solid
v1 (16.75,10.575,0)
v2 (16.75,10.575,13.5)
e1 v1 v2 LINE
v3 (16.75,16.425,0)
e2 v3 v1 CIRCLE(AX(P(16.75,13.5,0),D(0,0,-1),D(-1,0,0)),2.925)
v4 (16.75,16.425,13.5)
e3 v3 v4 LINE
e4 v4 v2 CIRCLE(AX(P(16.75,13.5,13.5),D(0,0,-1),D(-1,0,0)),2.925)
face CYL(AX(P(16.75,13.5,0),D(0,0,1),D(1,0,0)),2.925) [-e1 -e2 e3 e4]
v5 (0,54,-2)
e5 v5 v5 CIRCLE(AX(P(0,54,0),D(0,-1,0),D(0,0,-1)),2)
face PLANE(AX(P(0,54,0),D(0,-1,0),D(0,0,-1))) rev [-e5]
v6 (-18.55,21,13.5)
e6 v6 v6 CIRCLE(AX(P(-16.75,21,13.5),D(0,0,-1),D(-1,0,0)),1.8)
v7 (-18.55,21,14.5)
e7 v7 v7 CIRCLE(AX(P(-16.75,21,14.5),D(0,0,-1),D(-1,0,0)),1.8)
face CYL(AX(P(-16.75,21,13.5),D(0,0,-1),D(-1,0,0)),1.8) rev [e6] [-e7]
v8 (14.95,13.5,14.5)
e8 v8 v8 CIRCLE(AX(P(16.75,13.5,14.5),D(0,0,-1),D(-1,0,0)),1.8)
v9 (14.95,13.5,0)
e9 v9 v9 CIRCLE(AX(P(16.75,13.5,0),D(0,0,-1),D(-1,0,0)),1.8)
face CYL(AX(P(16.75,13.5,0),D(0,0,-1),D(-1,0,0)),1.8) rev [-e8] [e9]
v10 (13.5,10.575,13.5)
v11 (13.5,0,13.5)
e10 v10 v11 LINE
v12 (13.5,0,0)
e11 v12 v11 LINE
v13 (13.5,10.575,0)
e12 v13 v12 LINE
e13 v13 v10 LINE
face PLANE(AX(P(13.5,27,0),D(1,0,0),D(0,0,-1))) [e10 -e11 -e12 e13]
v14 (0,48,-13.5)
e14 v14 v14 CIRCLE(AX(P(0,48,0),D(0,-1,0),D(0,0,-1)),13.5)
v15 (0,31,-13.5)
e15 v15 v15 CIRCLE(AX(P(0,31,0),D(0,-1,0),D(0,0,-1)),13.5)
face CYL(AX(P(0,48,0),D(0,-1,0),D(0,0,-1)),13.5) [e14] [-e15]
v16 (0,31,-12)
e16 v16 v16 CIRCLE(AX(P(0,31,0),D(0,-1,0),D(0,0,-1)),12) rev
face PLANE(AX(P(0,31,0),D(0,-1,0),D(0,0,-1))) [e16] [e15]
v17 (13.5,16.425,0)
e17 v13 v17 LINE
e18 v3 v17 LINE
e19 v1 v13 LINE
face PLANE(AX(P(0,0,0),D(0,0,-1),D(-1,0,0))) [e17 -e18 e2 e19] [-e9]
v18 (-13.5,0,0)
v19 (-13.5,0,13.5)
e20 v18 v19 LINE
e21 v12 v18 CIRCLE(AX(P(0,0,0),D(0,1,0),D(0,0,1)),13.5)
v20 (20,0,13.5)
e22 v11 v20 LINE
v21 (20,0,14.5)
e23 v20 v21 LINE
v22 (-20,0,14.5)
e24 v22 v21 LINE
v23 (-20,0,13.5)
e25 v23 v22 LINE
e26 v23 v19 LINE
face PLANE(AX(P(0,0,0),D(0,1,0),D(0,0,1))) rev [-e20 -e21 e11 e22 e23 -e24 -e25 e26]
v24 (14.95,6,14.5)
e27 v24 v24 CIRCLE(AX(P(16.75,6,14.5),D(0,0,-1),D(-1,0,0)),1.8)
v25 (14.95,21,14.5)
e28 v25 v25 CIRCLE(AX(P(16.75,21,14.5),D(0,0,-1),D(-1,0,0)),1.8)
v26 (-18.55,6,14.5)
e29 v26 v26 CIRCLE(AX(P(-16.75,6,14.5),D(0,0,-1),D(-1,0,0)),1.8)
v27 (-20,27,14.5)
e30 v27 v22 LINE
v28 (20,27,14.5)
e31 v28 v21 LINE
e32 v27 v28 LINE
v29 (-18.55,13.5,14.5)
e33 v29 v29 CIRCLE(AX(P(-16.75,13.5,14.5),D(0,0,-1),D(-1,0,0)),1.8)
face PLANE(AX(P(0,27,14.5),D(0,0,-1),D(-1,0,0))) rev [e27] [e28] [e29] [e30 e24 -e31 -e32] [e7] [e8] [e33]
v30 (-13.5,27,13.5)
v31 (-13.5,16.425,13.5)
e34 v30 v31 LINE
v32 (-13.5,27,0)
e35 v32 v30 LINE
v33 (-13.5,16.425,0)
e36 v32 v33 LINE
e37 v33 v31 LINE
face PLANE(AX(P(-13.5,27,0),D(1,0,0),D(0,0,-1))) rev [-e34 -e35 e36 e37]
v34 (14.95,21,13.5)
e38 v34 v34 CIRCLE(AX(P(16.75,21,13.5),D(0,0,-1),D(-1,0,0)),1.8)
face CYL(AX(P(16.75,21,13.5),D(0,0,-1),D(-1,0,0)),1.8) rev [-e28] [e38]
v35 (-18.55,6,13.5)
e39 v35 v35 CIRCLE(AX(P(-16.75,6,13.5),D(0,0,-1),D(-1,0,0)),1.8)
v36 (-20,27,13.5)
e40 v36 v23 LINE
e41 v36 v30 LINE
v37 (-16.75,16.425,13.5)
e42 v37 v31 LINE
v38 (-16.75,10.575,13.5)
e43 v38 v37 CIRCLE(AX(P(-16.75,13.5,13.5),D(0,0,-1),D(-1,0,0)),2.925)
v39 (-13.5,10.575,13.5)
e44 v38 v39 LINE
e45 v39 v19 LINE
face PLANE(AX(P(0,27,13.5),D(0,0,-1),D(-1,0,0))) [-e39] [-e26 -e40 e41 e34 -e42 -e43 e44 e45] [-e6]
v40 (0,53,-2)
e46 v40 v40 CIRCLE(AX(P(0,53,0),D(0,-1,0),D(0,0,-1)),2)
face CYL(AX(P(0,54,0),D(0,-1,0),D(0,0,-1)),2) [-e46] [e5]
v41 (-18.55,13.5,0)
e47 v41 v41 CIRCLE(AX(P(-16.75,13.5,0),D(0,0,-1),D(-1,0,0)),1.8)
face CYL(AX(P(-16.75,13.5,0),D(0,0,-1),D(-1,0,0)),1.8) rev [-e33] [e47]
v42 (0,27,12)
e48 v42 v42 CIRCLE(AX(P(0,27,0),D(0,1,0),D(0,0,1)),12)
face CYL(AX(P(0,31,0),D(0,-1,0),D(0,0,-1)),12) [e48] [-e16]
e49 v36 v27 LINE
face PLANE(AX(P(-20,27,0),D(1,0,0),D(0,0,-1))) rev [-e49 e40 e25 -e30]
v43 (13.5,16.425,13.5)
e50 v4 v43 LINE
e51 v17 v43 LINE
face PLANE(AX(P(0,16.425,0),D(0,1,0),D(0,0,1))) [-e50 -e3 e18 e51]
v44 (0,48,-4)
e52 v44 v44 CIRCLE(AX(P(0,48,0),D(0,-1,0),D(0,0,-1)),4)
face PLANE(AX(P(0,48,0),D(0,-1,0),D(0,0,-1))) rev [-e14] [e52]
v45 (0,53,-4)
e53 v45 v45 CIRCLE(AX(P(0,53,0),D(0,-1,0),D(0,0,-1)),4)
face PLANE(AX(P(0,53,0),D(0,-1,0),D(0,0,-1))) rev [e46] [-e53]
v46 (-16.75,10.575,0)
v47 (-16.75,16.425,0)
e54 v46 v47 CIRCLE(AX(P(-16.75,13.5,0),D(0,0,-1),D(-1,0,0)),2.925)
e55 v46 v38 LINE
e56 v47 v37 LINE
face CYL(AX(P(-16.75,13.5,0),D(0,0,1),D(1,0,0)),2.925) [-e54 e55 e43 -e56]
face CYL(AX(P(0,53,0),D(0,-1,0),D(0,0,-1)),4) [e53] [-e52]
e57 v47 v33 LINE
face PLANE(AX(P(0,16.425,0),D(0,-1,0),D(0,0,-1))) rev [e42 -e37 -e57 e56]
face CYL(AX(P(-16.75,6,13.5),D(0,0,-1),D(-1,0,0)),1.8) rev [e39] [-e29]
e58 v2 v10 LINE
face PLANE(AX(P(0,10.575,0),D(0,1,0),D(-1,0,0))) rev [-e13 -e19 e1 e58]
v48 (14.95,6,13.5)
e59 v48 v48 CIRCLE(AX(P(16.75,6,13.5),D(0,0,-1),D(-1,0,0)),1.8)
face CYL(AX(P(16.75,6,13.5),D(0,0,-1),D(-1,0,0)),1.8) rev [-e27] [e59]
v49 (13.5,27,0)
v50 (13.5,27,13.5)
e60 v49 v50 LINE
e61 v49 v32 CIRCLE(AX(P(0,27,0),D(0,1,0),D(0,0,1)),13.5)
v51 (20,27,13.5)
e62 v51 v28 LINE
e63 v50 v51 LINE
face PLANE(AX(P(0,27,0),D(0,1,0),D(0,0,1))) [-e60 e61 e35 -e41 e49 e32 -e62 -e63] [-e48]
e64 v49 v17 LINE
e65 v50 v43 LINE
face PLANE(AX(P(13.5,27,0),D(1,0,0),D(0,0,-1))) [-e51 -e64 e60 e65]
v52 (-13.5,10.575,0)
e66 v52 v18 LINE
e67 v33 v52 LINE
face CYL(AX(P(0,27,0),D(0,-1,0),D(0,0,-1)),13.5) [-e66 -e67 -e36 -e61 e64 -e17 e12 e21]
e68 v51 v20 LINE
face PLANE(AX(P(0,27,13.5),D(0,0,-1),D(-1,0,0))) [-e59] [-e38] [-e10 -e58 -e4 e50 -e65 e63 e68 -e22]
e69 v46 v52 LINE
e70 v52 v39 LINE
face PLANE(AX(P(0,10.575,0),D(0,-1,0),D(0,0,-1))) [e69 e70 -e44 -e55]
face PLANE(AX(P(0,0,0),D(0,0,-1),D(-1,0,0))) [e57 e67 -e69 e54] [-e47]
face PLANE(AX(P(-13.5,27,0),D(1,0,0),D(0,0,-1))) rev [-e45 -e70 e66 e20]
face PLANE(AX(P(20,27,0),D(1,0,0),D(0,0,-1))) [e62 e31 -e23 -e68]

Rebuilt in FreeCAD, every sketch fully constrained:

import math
import FreeCAD as App
import Part
import Sketcher
from FreeCAD import Vector

doc = App.newDocument("Part")
params = doc.addObject("Spreadsheet::Sheet", "Params")
for row, (alias, value) in enumerate([
    ("sketch1_radius", "13.5 mm"),
    ("sketch1_width", "40 mm"),
    ("sketch1_height", "1 mm"),
    ("sketch1_height2", "13.5 mm"),
    ("pad1_length", "27 mm"),
    ("sketch2_width", "3.25 mm"),
    ("pad2_length", "13.5 mm"),
    ("sketch3_width", "3.25 mm"),
    ("pad3_length", "13.5 mm"),
    ("sketch4_diameter", "24 mm"),
    ("pad4_length", "4 mm"),
    ("sketch5_diameter", "27 mm"),
    ("pad5_length", "17 mm"),
    ("sketch6_diameter", "8 mm"),
    ("pad6_length", "5 mm"),
    ("sketch7_diameter", "4 mm"),
    ("pad7_length", "1 mm"),
    ("sketch8_diameter", "3.6 mm"),
    ("hole_diameter", "3.6 mm"),
    ("sketch9_diameter", "3.6 mm"),
    ("hole2_diameter", "3.6 mm"),
], start=1):
    params.set(f"A{row}", alias)
    params.set(f"B{row}", "=" + value)
    params.setAlias(f"B{row}", alias)

body = doc.addObject("PartDesign::Body", "Body")

sketch1 = doc.addObject("Sketcher::SketchObject", "Sketch")
body.addObject(sketch1)
sketch1.AttachmentSupport = (doc.XZ_Plane, [""])
sketch1.MapMode = "FlatFace"
sketch1.addGeometry(Part.LineSegment(Vector(-13.5, 0, 0), Vector(-13.5, 13.5, 0)), False)
sketch1.addGeometry(Part.LineSegment(Vector(-13.5, 13.5, 0), Vector(-20, 13.5, 0)), False)
sketch1.addGeometry(Part.LineSegment(Vector(-20, 13.5, 0), Vector(-20, 14.5, 0)), False)
sketch1.addGeometry(Part.LineSegment(Vector(-20, 14.5, 0), Vector(20, 14.5, 0)), False)
sketch1.addGeometry(Part.LineSegment(Vector(20, 14.5, 0), Vector(20, 13.5, 0)), False)
sketch1.addGeometry(Part.LineSegment(Vector(20, 13.5, 0), Vector(13.5, 13.5, 0)), False)
sketch1.addGeometry(Part.LineSegment(Vector(13.5, 13.5, 0), Vector(13.5, 0, 0)), False)
sketch1.addGeometry(Part.ArcOfCircle(Part.Circle(Vector(0, 0, 0), Vector(0, 0, 1), 13.5), math.radians(180), math.radians(360)), False)
sketch1.addConstraint(Sketcher.Constraint("Coincident", 0, 2, 1, 1))
sketch1.addConstraint(Sketcher.Constraint("Coincident", 1, 2, 2, 1))
sketch1.addConstraint(Sketcher.Constraint("Coincident", 2, 2, 3, 1))
sketch1.addConstraint(Sketcher.Constraint("Coincident", 3, 2, 4, 1))
sketch1.addConstraint(Sketcher.Constraint("Coincident", 4, 2, 5, 1))
sketch1.addConstraint(Sketcher.Constraint("Coincident", 5, 2, 6, 1))
sketch1.addConstraint(Sketcher.Constraint("Tangent", 6, 2, 7, 2))
sketch1.addConstraint(Sketcher.Constraint("Tangent", 7, 1, 0, 1))
sketch1.addConstraint(Sketcher.Constraint("Vertical", 0))
sketch1.addConstraint(Sketcher.Constraint("Horizontal", 1))
sketch1.addConstraint(Sketcher.Constraint("Vertical", 2))
sketch1.addConstraint(Sketcher.Constraint("Horizontal", 3))
sketch1.addConstraint(Sketcher.Constraint("Vertical", 4))
sketch1.addConstraint(Sketcher.Constraint("Horizontal", 5))
sketch1.addConstraint(Sketcher.Constraint("Vertical", 6))
sketch1.addConstraint(Sketcher.Constraint("Coincident", 7, 3, -1, 1))
sketch1.addConstraint(Sketcher.Constraint("Symmetric", 1, 2, 4, 2, -2))
sketch1.addConstraint(Sketcher.Constraint("Radius", 7, 13.5))
sketch1.addConstraint(Sketcher.Constraint("DistanceX", 3, 1, 3, 2, 40.0))
sketch1.addConstraint(Sketcher.Constraint("DistanceY", 2, 1, 2, 2, 1.0))
sketch1.addConstraint(Sketcher.Constraint("DistanceY", 0, 1, 0, 2, 13.5))
sketch1.setExpression("Constraints[17]", "Params.sketch1_radius")
sketch1.setExpression("Constraints[18]", "Params.sketch1_width")
sketch1.setExpression("Constraints[19]", "Params.sketch1_height")
sketch1.setExpression("Constraints[20]", "Params.sketch1_height2")
pad1 = doc.addObject("PartDesign::Pad", "Pad")
body.addObject(pad1)
pad1.Profile = sketch1
pad1.setExpression("Length", "Params.pad1_length")
pad1.Reversed = True

sketch2 = doc.addObject("Sketcher::SketchObject", "Sketch001")
body.addObject(sketch2)
sketch2.AttachmentSupport = (doc.XY_Plane, [""])
sketch2.MapMode = "FlatFace"
sketch2.AttachmentOffset = App.Placement(Vector(0, 0, 13.5), App.Rotation())
sketch2.addGeometry(Part.LineSegment(Vector(-13.5, 10.6, 0), Vector(-16.8, 10.6, 0)), False)
sketch2.addGeometry(Part.ArcOfCircle(Part.Circle(Vector(-16.8, 13.5, 0), Vector(0, 0, 1), 2.9), math.radians(90), math.radians(270)), False)
sketch2.addGeometry(Part.LineSegment(Vector(-16.8, 16.4, 0), Vector(-13.5, 16.4, 0)), False)
sketch2.addGeometry(Part.LineSegment(Vector(-13.5, 16.4, 0), Vector(-13.5, 10.6, 0)), False)
sketch2.addConstraint(Sketcher.Constraint("Tangent", 0, 2, 1, 2))
sketch2.addConstraint(Sketcher.Constraint("Tangent", 1, 1, 2, 1))
sketch2.addConstraint(Sketcher.Constraint("Coincident", 2, 2, 3, 1))
sketch2.addConstraint(Sketcher.Constraint("Coincident", 3, 2, 0, 1))
sketch2.addConstraint(Sketcher.Constraint("Horizontal", 0))
sketch2.addConstraint(Sketcher.Constraint("Horizontal", 2))
sketch2.addConstraint(Sketcher.Constraint("Vertical", 3))
sketch2.addConstraint(Sketcher.Constraint("Radius", 1, 2.925))
sketch2.addConstraint(Sketcher.Constraint("DistanceX", 0, 2, 0, 1, 3.25))
sketch2.addConstraint(Sketcher.Constraint("DistanceY", -1, 1, 1, 3, 13.5))
sketch2.addConstraint(Sketcher.Constraint("DistanceX", 2, 2, -1, 1, 13.5))
sketch2.setExpression("Constraints[8]", "Params.sketch2_width")
pad2 = doc.addObject("PartDesign::Pad", "Pad001")
body.addObject(pad2)
pad2.Profile = sketch2
pad2.setExpression("Length", "Params.pad2_length")
pad2.Reversed = True

sketch3 = doc.addObject("Sketcher::SketchObject", "Sketch002")
body.addObject(sketch3)
sketch3.AttachmentSupport = (doc.XY_Plane, [""])
sketch3.MapMode = "FlatFace"
sketch3.AttachmentOffset = App.Placement(Vector(0, 0, 13.5), App.Rotation())
sketch3.addGeometry(Part.LineSegment(Vector(13.5, 16.4, 0), Vector(16.8, 16.4, 0)), False)
sketch3.addGeometry(Part.ArcOfCircle(Part.Circle(Vector(16.8, 13.5, 0), Vector(0, 0, 1), 2.9), math.radians(-90), math.radians(90)), False)
sketch3.addGeometry(Part.LineSegment(Vector(16.8, 10.6, 0), Vector(13.5, 10.6, 0)), False)
sketch3.addGeometry(Part.LineSegment(Vector(13.5, 10.6, 0), Vector(13.5, 16.4, 0)), False)
sketch3.addConstraint(Sketcher.Constraint("Tangent", 0, 2, 1, 2))
sketch3.addConstraint(Sketcher.Constraint("Tangent", 1, 1, 2, 1))
sketch3.addConstraint(Sketcher.Constraint("Coincident", 2, 2, 3, 1))
sketch3.addConstraint(Sketcher.Constraint("Coincident", 3, 2, 0, 1))
sketch3.addConstraint(Sketcher.Constraint("Horizontal", 0))
sketch3.addConstraint(Sketcher.Constraint("Horizontal", 2))
sketch3.addConstraint(Sketcher.Constraint("Vertical", 3))
sketch3.addConstraint(Sketcher.Constraint("Radius", 1, 2.925))
sketch3.addConstraint(Sketcher.Constraint("DistanceX", 0, 1, 0, 2, 3.25))
sketch3.addConstraint(Sketcher.Constraint("DistanceY", -1, 1, 1, 3, 13.5))
sketch3.addConstraint(Sketcher.Constraint("DistanceX", -1, 1, 2, 2, 13.5))
sketch3.setExpression("Constraints[8]", "Params.sketch3_width")
pad3 = doc.addObject("PartDesign::Pad", "Pad002")
body.addObject(pad3)
pad3.Profile = sketch3
pad3.setExpression("Length", "Params.pad3_length")
pad3.Reversed = True

sketch4 = doc.addObject("Sketcher::SketchObject", "Sketch003")
body.addObject(sketch4)
sketch4.AttachmentSupport = (doc.XZ_Plane, [""])
sketch4.MapMode = "FlatFace"
sketch4.AttachmentOffset = App.Placement(Vector(0, 0, -27), App.Rotation())
sketch4.addGeometry(Part.Circle(Vector(0, 0, 0), Vector(0, 0, 1), 12), False)
sketch4.addConstraint(Sketcher.Constraint("Coincident", 0, 3, -1, 1))
sketch4.addConstraint(Sketcher.Constraint("Diameter", 0, 24.0))
sketch4.setExpression("Constraints[1]", "Params.sketch4_diameter")
pad4 = doc.addObject("PartDesign::Pad", "Pad003")
body.addObject(pad4)
pad4.Profile = sketch4
pad4.setExpression("Length", "Params.pad4_length")
pad4.Reversed = True

sketch5 = doc.addObject("Sketcher::SketchObject", "Sketch004")
body.addObject(sketch5)
sketch5.AttachmentSupport = (doc.XZ_Plane, [""])
sketch5.MapMode = "FlatFace"
sketch5.AttachmentOffset = App.Placement(Vector(0, 0, -31), App.Rotation())
sketch5.addGeometry(Part.Circle(Vector(0, 0, 0), Vector(0, 0, 1), 14), False)
sketch5.addConstraint(Sketcher.Constraint("Coincident", 0, 3, -1, 1))
sketch5.addConstraint(Sketcher.Constraint("Diameter", 0, 27.0))
sketch5.setExpression("Constraints[1]", "Params.sketch5_diameter")
pad5 = doc.addObject("PartDesign::Pad", "Pad004")
body.addObject(pad5)
pad5.Profile = sketch5
pad5.setExpression("Length", "Params.pad5_length")
pad5.Reversed = True

sketch6 = doc.addObject("Sketcher::SketchObject", "Sketch005")
body.addObject(sketch6)
sketch6.AttachmentSupport = (doc.XZ_Plane, [""])
sketch6.MapMode = "FlatFace"
sketch6.AttachmentOffset = App.Placement(Vector(0, 0, -48), App.Rotation())
sketch6.addGeometry(Part.Circle(Vector(0, 0, 0), Vector(0, 0, 1), 4), False)
sketch6.addConstraint(Sketcher.Constraint("Coincident", 0, 3, -1, 1))
sketch6.addConstraint(Sketcher.Constraint("Diameter", 0, 8.0))
sketch6.setExpression("Constraints[1]", "Params.sketch6_diameter")
pad6 = doc.addObject("PartDesign::Pad", "Pad005")
body.addObject(pad6)
pad6.Profile = sketch6
pad6.setExpression("Length", "Params.pad6_length")
pad6.Reversed = True

sketch7 = doc.addObject("Sketcher::SketchObject", "Sketch006")
body.addObject(sketch7)
sketch7.AttachmentSupport = (doc.XZ_Plane, [""])
sketch7.MapMode = "FlatFace"
sketch7.AttachmentOffset = App.Placement(Vector(0, 0, -53), App.Rotation())
sketch7.addGeometry(Part.Circle(Vector(0, 0, 0), Vector(0, 0, 1), 2), False)
sketch7.addConstraint(Sketcher.Constraint("Coincident", 0, 3, -1, 1))
sketch7.addConstraint(Sketcher.Constraint("Diameter", 0, 4.0))
sketch7.setExpression("Constraints[1]", "Params.sketch7_diameter")
pad7 = doc.addObject("PartDesign::Pad", "Pad006")
body.addObject(pad7)
pad7.Profile = sketch7
pad7.setExpression("Length", "Params.pad7_length")
pad7.Reversed = True

sketch8 = doc.addObject("Sketcher::SketchObject", "Sketch007")
body.addObject(sketch8)
sketch8.AttachmentSupport = (doc.XY_Plane, [""])
sketch8.MapMode = "FlatFace"
sketch8.AttachmentOffset = App.Placement(Vector(0, 0, 13.5), App.Rotation())
sketch8.addGeometry(Part.Circle(Vector(16.8, 21, 0), Vector(0, 0, 1), 1.8), False)
sketch8.addGeometry(Part.Circle(Vector(16.8, 6, 0), Vector(0, 0, 1), 1.8), False)
sketch8.addGeometry(Part.Circle(Vector(-16.8, 21, 0), Vector(0, 0, 1), 1.8), False)
sketch8.addGeometry(Part.Circle(Vector(-16.8, 6, 0), Vector(0, 0, 1), 1.8), False)
sketch8.addConstraint(Sketcher.Constraint("Equal", 0, 1))
sketch8.addConstraint(Sketcher.Constraint("Equal", 1, 2))
sketch8.addConstraint(Sketcher.Constraint("Equal", 2, 3))
sketch8.addConstraint(Sketcher.Constraint("Symmetric", 0, 3, 2, 3, -2))
sketch8.addConstraint(Sketcher.Constraint("Symmetric", 1, 3, 3, 3, -2))
sketch8.addConstraint(Sketcher.Constraint("Vertical", 0, 3, 1, 3))
sketch8.addConstraint(Sketcher.Constraint("Diameter", 0, 3.6))
sketch8.addConstraint(Sketcher.Constraint("DistanceY", -1, 1, 0, 3, 21.0))
sketch8.addConstraint(Sketcher.Constraint("DistanceY", -1, 1, 1, 3, 6.0))
sketch8.addConstraint(Sketcher.Constraint("DistanceX", 2, 3, 0, 3, 33.5))
sketch8.setExpression("Constraints[6]", "Params.sketch8_diameter")
doc.recompute()
hole = doc.addObject("PartDesign::Hole", "Hole")
body.addObject(hole)
hole.Profile = sketch8
hole.ThreadType = "None"
hole.setExpression("Diameter", "Params.hole_diameter")
hole.DepthType = "ThroughAll"
hole.Reversed = True

sketch9 = doc.addObject("Sketcher::SketchObject", "Sketch008")
body.addObject(sketch9)
sketch9.AttachmentSupport = (doc.XY_Plane, [""])
sketch9.MapMode = "FlatFace"
sketch9.addGeometry(Part.Circle(Vector(16.8, 13.5, 0), Vector(0, 0, 1), 1.8), False)
sketch9.addGeometry(Part.Circle(Vector(-16.8, 13.5, 0), Vector(0, 0, 1), 1.8), False)
sketch9.addConstraint(Sketcher.Constraint("Equal", 0, 1))
sketch9.addConstraint(Sketcher.Constraint("Symmetric", 0, 3, 1, 3, -2))
sketch9.addConstraint(Sketcher.Constraint("Diameter", 0, 3.6))
sketch9.addConstraint(Sketcher.Constraint("DistanceY", -1, 1, 0, 3, 13.5))
sketch9.addConstraint(Sketcher.Constraint("DistanceX", 1, 3, 0, 3, 33.5))
sketch9.setExpression("Constraints[2]", "Params.sketch9_diameter")
doc.recompute()
hole2 = doc.addObject("PartDesign::Hole", "Hole001")
body.addObject(hole2)
hole2.Profile = sketch9
hole2.ThreadType = "None"
hole2.setExpression("Diameter", "Params.hole2_diameter")
hole2.DepthType = "ThroughAll"
hole2.Reversed = True

doc.recompute()
